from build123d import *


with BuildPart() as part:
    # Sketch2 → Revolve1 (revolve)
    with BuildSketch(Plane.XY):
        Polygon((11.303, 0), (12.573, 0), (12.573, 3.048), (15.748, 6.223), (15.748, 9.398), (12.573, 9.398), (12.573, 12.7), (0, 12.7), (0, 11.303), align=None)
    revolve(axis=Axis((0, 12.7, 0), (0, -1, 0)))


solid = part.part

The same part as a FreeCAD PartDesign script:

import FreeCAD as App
import Part
import Sketcher

V = App.Vector
Q = App.Units.Quantity

doc = App.newDocument("Part")
body = doc.addObject("PartDesign::Body", "Body")

# Sketch on XY plane
sketch1 = body.newObject("Sketcher::SketchObject", "Sketch")
sketch1.AttachmentSupport = (doc.getObject("XY_Plane"), [""])
sketch1.MapMode = "FlatFace"
sketch1.addGeometry([
    Part.LineSegment(V(11.3, 0, 0), V(12.6, 0, 0)),  # 0
    Part.LineSegment(V(12.6, 0, 0), V(12.6, 3, 0)),  # 1
    Part.LineSegment(V(12.6, 3, 0), V(15.7, 6.2, 0)),  # 2
    Part.LineSegment(V(15.7, 6.2, 0), V(15.7, 9.4, 0)),  # 3
    Part.LineSegment(V(15.7, 9.4, 0), V(12.6, 9.4, 0)),  # 4
    Part.LineSegment(V(12.6, 9.4, 0), V(12.6, 12.7, 0)),  # 5
    Part.LineSegment(V(12.6, 12.7, 0), V(0, 12.7, 0)),  # 6
    Part.LineSegment(V(0, 12.7, 0), V(0, 11.3, 0)),  # 7
    Part.LineSegment(V(0, 11.3, 0), V(11.3, 0, 0)),  # 8
], False)
sketch1.addConstraint([
    Sketcher.Constraint("Coincident", 0, 2, 1, 1),
    Sketcher.Constraint("Coincident", 1, 2, 2, 1),
    Sketcher.Constraint("Coincident", 2, 2, 3, 1),
    Sketcher.Constraint("Coincident", 3, 2, 4, 1),
    Sketcher.Constraint("Coincident", 4, 2, 5, 1),
    Sketcher.Constraint("Coincident", 5, 2, 6, 1),
    Sketcher.Constraint("Coincident", 6, 2, 7, 1),
    Sketcher.Constraint("Coincident", 7, 2, 8, 1),
    Sketcher.Constraint("Coincident", 8, 2, 0, 1),
    Sketcher.Constraint("Horizontal", 0),
    Sketcher.Constraint("Vertical", 1),
    Sketcher.Constraint("Vertical", 3),
    Sketcher.Constraint("Horizontal", 4),
    Sketcher.Constraint("Vertical", 5),
    Sketcher.Constraint("Horizontal", 6),
    Sketcher.Constraint("Vertical", 7),
    Sketcher.Constraint("PointOnObject", 0, 2, -1),
    Sketcher.Constraint("PointOnObject", 6, 2, -2),
    Sketcher.Constraint("Perpendicular", 2, 8),
    Sketcher.Constraint("Vertical", 1, 2, 4, 2),
    Sketcher.Constraint("Equal", 4, 3),
    Sketcher.Constraint("Angle", 2, Q("45 deg")),
    Sketcher.Constraint("DistanceX", 0, 1, 0, 2, Q("0.05 in")),
    Sketcher.Constraint("DistanceY", 1, 1, 1, 2, Q("0.12 in")),
    Sketcher.Constraint("DistanceY", 5, 1, 5, 2, Q("0.13 in")),
    Sketcher.Constraint("DistanceY", -1, 1, 5, 2, Q("0.5 in")),
    Sketcher.Constraint("DistanceX", 6, 2, 6, 1, Q("0.495 in")),
])
revolution = body.newObject("PartDesign::Revolution", "Revolution")
revolution.Profile = sketch1
revolution.ReferenceAxis = (sketch1, ["V_Axis"])
revolution.Angle = 360

doc.recompute()
